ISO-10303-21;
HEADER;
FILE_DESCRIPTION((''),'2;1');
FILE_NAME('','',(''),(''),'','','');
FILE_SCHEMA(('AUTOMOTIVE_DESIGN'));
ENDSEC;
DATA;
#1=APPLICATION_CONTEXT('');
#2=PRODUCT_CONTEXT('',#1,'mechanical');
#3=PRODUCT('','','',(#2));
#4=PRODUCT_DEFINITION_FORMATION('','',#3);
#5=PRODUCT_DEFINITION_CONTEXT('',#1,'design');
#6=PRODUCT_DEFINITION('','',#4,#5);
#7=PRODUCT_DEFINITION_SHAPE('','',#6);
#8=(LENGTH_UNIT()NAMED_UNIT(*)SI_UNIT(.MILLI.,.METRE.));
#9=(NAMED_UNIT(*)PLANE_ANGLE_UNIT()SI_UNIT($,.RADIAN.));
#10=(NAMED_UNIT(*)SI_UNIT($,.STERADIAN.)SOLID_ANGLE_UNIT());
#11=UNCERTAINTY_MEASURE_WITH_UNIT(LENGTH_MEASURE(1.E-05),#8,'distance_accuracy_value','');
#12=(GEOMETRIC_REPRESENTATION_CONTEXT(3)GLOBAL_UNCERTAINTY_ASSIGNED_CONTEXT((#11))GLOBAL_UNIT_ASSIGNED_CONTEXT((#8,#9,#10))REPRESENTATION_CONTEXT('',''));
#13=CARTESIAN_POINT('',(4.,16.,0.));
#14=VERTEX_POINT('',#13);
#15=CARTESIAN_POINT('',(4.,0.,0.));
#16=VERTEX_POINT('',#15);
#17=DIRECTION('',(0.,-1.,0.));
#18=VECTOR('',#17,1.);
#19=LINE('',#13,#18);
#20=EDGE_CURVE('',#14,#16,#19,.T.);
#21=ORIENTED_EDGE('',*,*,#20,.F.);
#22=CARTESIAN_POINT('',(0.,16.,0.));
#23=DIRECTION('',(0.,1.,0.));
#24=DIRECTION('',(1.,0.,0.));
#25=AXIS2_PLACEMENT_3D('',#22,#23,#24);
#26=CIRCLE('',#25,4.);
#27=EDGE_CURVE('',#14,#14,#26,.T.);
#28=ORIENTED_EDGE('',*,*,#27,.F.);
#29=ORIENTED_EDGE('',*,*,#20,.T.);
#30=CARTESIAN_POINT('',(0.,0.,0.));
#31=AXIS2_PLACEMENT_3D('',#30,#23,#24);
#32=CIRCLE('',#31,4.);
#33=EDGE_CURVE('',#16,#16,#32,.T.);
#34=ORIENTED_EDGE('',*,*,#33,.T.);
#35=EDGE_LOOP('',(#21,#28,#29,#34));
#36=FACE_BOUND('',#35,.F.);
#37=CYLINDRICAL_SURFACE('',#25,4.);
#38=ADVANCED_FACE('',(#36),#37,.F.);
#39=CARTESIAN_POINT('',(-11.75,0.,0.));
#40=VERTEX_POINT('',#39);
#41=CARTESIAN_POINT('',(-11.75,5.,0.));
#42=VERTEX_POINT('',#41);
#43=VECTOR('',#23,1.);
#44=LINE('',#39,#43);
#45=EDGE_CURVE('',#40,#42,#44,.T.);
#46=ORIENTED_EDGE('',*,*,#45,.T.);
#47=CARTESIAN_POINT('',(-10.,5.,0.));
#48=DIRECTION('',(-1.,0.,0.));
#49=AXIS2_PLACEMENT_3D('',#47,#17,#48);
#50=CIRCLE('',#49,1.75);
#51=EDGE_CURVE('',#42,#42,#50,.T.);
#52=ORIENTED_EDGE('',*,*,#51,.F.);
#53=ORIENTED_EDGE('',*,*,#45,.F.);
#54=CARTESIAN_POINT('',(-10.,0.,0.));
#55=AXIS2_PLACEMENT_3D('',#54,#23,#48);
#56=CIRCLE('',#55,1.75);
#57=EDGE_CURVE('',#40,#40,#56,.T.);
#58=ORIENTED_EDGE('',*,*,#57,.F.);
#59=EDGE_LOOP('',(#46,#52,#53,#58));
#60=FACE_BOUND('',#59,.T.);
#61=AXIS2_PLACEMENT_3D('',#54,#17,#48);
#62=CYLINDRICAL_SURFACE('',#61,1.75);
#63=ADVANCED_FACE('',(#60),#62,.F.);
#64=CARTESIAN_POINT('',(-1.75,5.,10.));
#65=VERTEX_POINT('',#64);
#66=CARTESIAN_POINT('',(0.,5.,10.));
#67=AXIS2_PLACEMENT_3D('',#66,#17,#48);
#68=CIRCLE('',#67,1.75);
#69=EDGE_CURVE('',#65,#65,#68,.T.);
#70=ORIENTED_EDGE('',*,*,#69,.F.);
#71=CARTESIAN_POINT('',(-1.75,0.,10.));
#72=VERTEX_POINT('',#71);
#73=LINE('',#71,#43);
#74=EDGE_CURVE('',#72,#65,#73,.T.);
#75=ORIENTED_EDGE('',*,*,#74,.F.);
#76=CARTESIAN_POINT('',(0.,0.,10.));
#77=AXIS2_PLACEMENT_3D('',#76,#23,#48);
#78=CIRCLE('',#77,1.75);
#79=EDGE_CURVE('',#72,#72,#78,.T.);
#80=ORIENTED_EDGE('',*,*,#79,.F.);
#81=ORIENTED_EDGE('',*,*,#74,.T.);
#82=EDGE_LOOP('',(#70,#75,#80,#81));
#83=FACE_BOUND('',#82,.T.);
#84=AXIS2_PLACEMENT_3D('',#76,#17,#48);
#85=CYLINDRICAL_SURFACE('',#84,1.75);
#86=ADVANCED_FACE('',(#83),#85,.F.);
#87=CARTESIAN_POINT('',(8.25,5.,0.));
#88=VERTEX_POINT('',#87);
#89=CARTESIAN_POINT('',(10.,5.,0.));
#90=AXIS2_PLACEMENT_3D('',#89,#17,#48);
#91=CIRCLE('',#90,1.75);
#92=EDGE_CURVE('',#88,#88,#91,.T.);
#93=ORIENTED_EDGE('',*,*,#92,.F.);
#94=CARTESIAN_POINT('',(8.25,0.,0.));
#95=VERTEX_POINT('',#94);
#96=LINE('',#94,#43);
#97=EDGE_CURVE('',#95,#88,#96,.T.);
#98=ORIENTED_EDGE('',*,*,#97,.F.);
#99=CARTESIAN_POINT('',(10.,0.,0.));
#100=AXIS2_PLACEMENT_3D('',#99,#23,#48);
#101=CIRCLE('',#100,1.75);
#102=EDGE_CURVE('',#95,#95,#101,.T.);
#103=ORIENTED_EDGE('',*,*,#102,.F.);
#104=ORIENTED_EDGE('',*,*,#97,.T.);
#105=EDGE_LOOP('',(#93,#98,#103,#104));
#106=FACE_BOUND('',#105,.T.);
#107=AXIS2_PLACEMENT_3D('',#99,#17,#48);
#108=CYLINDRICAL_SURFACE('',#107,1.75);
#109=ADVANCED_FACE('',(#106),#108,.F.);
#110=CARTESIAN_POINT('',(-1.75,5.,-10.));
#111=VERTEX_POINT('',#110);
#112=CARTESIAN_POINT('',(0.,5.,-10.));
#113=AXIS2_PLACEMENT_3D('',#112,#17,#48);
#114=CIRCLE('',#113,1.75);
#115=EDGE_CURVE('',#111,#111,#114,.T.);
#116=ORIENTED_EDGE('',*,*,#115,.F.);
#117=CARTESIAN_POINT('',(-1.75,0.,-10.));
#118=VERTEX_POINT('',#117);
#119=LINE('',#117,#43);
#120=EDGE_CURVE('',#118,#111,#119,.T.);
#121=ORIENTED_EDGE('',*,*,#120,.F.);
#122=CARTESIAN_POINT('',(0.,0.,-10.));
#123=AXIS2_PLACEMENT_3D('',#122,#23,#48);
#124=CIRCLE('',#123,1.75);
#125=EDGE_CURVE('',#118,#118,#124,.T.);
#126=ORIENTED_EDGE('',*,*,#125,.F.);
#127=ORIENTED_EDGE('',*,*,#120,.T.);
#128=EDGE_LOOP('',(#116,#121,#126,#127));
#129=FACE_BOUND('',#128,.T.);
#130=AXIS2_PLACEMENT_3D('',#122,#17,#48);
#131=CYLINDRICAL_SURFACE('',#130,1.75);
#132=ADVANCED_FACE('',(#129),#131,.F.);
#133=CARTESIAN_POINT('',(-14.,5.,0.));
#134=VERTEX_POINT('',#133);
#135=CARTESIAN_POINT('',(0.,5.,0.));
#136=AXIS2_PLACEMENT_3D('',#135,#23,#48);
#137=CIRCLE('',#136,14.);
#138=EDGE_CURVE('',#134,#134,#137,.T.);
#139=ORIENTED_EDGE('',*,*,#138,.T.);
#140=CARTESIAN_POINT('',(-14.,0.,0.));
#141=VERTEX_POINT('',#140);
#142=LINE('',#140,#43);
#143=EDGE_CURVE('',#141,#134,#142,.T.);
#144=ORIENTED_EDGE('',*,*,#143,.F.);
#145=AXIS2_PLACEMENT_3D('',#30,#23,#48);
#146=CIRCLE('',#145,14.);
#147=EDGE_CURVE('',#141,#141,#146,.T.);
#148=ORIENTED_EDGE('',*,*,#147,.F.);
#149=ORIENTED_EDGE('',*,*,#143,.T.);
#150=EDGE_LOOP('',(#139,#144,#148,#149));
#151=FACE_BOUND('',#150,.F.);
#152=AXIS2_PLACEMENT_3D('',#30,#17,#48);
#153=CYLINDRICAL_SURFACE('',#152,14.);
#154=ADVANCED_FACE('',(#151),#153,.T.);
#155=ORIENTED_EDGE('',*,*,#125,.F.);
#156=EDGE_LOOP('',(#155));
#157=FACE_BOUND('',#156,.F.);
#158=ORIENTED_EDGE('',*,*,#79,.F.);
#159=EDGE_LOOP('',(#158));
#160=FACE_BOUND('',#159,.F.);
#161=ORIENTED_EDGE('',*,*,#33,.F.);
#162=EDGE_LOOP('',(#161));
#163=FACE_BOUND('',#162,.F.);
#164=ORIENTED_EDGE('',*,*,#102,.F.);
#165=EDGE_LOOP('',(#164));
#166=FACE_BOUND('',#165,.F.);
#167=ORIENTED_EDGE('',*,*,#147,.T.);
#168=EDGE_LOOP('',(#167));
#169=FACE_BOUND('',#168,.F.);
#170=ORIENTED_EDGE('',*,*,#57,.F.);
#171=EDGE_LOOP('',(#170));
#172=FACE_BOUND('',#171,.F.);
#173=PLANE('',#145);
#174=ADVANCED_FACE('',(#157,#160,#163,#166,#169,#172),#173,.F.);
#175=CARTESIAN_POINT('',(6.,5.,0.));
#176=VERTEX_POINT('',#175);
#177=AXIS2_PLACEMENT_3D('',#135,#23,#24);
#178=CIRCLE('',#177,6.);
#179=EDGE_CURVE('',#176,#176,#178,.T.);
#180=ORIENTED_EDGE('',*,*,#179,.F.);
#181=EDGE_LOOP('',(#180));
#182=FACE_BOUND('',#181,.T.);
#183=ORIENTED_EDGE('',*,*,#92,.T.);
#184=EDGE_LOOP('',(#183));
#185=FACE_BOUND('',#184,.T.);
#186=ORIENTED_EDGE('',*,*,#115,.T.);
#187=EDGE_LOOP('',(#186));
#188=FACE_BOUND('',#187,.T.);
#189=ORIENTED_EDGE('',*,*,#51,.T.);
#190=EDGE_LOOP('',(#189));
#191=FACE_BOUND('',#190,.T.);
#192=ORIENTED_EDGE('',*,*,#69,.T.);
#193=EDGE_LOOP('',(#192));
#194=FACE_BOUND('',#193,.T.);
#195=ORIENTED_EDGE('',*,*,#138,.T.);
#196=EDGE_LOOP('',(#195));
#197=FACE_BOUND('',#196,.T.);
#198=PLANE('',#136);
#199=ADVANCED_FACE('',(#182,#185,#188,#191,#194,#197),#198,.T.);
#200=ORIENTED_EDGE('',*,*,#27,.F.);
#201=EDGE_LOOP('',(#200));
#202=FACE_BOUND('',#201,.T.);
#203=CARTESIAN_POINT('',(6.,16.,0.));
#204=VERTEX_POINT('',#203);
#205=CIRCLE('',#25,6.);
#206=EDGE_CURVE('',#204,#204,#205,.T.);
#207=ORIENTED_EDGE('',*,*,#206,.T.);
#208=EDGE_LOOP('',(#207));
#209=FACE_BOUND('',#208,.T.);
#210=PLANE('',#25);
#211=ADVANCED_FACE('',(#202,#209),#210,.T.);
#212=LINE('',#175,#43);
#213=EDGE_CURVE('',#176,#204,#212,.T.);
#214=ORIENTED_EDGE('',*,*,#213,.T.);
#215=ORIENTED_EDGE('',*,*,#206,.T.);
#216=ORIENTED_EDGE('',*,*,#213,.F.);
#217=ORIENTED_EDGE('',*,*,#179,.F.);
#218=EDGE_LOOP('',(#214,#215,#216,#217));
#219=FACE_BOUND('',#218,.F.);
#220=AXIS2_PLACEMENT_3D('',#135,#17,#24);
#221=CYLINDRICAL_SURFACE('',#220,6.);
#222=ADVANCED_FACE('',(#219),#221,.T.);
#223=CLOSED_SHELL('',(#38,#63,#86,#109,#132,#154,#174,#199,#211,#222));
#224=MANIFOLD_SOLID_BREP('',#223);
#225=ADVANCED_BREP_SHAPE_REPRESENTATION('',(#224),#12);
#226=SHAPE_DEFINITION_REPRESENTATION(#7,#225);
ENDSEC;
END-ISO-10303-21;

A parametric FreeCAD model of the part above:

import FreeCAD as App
import Part
import Sketcher
from FreeCAD import Vector

doc = App.newDocument("Part")
params = doc.addObject("Spreadsheet::Sheet", "Params")
for row, (alias, value) in enumerate([
    ("sketch1_diameter", "28 mm"),
    ("sketch1_diameter2", "3.5 mm"),
    ("pad1_length", "5 mm"),
    ("sketch2_diameter", "12 mm"),
    ("pad2_length", "11 mm"),
    ("sketch3_diameter", "8 mm"),
], start=1):
    params.set(f"A{row}", alias)
    params.set(f"B{row}", "=" + value)
    params.setAlias(f"B{row}", alias)

body = doc.addObject("PartDesign::Body", "Body")

# Sketch on XZ plane
sketch1 = doc.addObject("Sketcher::SketchObject", "Sketch")
body.addObject(sketch1)
sketch1.AttachmentSupport = (doc.XZ_Plane, [""])
sketch1.MapMode = "FlatFace"
sketch1.addGeometry([
    Part.Circle(Vector(0, 0, 0), Vector(0, 0, 1), 14),  # 0
    Part.Circle(Vector(0, 10, 0), Vector(0, 0, 1), 1.8),  # 1
    Part.Circle(Vector(10, 0, 0), Vector(0, 0, 1), 1.8),  # 2
    Part.Circle(Vector(0, -10, 0), Vector(0, 0, 1), 1.8),  # 3
    Part.Circle(Vector(-10, 0, 0), Vector(0, 0, 1), 1.8),  # 4
], False)
sketch1.addConstraint([
    Sketcher.Constraint("Coincident", 0, 3, -1, 1),
    Sketcher.Constraint("Equal", 1, 2),
    Sketcher.Constraint("Equal", 2, 3),
    Sketcher.Constraint("Equal", 3, 4),
    Sketcher.Constraint("Symmetric", 1, 3, 3, 3, -1, 1),
    Sketcher.Constraint("Symmetric", 2, 3, 4, 3, -1, 1),
    Sketcher.Constraint("PointOnObject", 1, 3, -2),
    Sketcher.Constraint("PointOnObject", 2, 3, -1),
    Sketcher.Constraint("Diameter", 0, 28.0),
    Sketcher.Constraint("Diameter", 1, 3.5),
    Sketcher.Constraint("DistanceY", 3, 3, 1, 3, 20.0),
    Sketcher.Constraint("DistanceX", 4, 3, 2, 3, 20.0),
])
sketch1.setExpression("Constraints[8]", "Params.sketch1_diameter")
sketch1.setExpression("Constraints[9]", "Params.sketch1_diameter2")
pad1 = doc.addObject("PartDesign::Pad", "Pad")
body.addObject(pad1)
pad1.Profile = sketch1
pad1.setExpression("Length", "Params.pad1_length")
pad1.Reversed = True

# Sketch on XZ plane
sketch2 = doc.addObject("Sketcher::SketchObject", "Sketch001")
body.addObject(sketch2)
sketch2.AttachmentSupport = (doc.XZ_Plane, [""])
sketch2.MapMode = "FlatFace"
sketch2.AttachmentOffset = App.Placement(Vector(0, 0, -5), App.Rotation())
sketch2.addGeometry(Part.Circle(Vector(0, 0, 0), Vector(0, 0, 1), 6), False)
sketch2.addConstraint([
    Sketcher.Constraint("Coincident", 0, 3, -1, 1),
    Sketcher.Constraint("Diameter", 0, 12.0),
])
sketch2.setExpression("Constraints[1]", "Params.sketch2_diameter")
pad2 = doc.addObject("PartDesign::Pad", "Pad001")
body.addObject(pad2)
pad2.Profile = sketch2
pad2.setExpression("Length", "Params.pad2_length")
pad2.Reversed = True

# Sketch on XZ plane
sketch3 = doc.addObject("Sketcher::SketchObject", "Sketch002")
body.addObject(sketch3)
sketch3.AttachmentSupport = (doc.XZ_Plane, [""])
sketch3.MapMode = "FlatFace"
sketch3.AttachmentOffset = App.Placement(Vector(0, 0, -16), App.Rotation())
sketch3.addGeometry(Part.Circle(Vector(0, 0, 0), Vector(0, 0, 1), 4), False)
sketch3.addConstraint([
    Sketcher.Constraint("Coincident", 0, 3, -1, 1),
    Sketcher.Constraint("Diameter", 0, 8.0),
])
sketch3.setExpression("Constraints[1]", "Params.sketch3_diameter")
pocket1 = doc.addObject("PartDesign::Pocket", "Pocket")
body.addObject(pocket1)
pocket1.Profile = sketch3
pocket1.Type = "ThroughAll"
pocket1.Reversed = True

doc.recompute()
